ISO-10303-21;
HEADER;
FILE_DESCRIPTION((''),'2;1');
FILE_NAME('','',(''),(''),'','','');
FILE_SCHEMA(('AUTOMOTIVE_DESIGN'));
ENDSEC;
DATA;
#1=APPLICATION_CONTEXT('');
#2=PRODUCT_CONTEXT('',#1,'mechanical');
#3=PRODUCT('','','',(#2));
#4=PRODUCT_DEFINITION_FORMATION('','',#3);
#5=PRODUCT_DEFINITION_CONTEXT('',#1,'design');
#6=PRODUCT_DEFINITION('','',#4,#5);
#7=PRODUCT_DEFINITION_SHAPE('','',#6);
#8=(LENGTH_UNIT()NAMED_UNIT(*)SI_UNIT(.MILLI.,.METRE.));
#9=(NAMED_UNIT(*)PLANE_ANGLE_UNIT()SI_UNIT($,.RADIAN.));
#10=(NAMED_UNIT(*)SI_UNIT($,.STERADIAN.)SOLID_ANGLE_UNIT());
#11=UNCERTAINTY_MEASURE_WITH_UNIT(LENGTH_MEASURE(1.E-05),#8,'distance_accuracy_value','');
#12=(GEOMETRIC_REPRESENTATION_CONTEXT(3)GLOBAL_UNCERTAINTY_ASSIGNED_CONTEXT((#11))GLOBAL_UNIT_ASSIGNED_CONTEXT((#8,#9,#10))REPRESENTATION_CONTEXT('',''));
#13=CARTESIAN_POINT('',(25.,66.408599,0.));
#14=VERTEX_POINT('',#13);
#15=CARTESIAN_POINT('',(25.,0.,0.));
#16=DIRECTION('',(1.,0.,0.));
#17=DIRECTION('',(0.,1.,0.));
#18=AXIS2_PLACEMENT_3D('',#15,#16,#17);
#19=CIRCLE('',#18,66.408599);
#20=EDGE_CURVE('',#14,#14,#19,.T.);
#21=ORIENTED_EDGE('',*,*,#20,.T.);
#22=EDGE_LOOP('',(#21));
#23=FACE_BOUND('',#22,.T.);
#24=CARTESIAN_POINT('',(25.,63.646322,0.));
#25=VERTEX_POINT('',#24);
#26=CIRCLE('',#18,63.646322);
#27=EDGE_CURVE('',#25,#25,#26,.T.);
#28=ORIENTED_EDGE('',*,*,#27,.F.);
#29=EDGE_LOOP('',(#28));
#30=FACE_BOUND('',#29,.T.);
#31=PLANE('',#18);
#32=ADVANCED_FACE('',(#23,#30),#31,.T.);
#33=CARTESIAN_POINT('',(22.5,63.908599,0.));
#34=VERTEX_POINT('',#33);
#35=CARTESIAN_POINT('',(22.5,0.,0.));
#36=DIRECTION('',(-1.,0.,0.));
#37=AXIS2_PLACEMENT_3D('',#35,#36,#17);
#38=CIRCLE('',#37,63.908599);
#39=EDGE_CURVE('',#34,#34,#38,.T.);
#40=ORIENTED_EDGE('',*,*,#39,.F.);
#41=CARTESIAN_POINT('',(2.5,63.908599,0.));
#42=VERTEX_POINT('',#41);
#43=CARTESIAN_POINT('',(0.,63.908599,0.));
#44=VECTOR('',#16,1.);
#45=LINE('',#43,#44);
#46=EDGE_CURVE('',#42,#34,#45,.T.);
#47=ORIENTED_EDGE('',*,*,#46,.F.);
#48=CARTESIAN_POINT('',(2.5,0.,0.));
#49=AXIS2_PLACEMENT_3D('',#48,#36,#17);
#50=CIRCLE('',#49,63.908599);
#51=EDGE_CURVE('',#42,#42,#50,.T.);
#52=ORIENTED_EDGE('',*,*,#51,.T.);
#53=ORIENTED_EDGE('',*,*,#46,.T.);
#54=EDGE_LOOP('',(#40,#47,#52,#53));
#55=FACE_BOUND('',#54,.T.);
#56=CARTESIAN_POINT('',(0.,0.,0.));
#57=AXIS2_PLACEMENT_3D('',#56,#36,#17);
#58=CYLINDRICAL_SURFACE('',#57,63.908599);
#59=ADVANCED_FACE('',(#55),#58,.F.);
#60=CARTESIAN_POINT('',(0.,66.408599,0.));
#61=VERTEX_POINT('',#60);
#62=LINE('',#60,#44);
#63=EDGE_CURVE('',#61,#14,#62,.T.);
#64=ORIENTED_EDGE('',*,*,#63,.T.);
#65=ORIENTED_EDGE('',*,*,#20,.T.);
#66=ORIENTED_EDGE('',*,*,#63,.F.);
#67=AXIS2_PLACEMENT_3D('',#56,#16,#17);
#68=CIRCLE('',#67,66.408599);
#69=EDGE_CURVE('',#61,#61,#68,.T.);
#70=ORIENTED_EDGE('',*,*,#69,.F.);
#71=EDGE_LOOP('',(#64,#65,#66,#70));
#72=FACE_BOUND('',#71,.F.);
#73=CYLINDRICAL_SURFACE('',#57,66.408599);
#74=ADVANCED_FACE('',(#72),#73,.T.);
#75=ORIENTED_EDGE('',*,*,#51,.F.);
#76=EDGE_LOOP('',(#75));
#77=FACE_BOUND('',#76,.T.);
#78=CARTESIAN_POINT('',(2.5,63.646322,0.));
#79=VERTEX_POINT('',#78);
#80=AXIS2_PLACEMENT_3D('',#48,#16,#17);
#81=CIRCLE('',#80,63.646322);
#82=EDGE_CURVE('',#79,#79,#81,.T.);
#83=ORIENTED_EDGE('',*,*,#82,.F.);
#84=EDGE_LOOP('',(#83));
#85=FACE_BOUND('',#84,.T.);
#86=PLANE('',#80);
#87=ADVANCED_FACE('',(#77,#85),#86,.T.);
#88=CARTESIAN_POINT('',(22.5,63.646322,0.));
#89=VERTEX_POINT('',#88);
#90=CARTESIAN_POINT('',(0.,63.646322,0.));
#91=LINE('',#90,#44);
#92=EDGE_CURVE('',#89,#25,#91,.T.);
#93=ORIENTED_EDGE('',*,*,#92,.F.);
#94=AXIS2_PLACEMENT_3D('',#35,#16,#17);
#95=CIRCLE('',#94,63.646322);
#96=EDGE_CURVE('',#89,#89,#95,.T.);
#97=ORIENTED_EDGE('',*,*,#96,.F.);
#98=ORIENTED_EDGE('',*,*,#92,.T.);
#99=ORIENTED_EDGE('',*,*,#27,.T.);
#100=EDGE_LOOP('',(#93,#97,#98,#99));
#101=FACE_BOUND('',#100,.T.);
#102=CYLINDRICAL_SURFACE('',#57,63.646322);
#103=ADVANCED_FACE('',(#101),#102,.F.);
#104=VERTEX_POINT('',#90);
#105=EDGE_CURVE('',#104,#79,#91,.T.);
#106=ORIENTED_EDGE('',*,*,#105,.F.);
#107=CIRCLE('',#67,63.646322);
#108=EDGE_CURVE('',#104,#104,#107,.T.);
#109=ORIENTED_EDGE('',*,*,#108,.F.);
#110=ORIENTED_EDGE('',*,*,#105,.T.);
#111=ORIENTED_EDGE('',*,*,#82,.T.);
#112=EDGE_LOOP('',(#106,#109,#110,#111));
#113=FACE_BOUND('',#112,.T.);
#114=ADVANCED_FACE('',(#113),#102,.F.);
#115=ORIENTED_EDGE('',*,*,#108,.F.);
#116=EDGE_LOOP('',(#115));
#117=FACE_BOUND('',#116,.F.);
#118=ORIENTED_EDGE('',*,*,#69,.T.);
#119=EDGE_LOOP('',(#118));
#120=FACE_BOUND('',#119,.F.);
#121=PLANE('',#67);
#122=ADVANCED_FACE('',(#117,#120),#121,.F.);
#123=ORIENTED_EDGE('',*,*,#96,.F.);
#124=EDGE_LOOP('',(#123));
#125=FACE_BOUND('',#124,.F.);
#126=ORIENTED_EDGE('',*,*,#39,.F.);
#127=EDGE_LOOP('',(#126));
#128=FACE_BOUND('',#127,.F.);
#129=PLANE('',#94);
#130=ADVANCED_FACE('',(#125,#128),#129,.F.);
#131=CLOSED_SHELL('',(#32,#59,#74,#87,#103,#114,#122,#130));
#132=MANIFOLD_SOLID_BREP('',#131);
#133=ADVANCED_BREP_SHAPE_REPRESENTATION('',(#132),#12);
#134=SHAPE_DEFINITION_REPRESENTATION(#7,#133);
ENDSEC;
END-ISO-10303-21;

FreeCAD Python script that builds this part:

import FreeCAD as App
import Part
import Sketcher
from FreeCAD import Vector
Q = App.Units.Quantity


def faces_at(feature, points):
    """Names of the faces that lie closest to the given points."""
    faces = feature.Shape.Faces
    near = lambda p: min(range(len(faces)), key=lambda i: faces[i].distToShape(Part.Vertex(*p))[0])
    return sorted({f"Face{near(p) + 1}" for p in points})

doc = App.newDocument("Part")
body = doc.addObject("PartDesign::Body", "Body")

# Sketch on YZ plane
sketch1 = doc.addObject("Sketcher::SketchObject", "Sketch")
body.addObject(sketch1)
sketch1.AttachmentSupport = (doc.YZ_Plane, [""])
sketch1.MapMode = "FlatFace"
sketch1.addGeometry(Part.Circle(Vector(0, 0, 0), Vector(0, 0, 1), 66), False)
sketch1.addGeometry(Part.Circle(Vector(0, 0, 0), Vector(0, 0, 1), 64), False)
sketch1.addConstraint(Sketcher.Constraint("Coincident", 0, 3, -1, 1))
sketch1.addConstraint(Sketcher.Constraint("Coincident", 1, 3, -1, 1))
sketch1.addConstraint(Sketcher.Constraint("Diameter", 0, Q("132.817198 mm")))
sketch1.addConstraint(Sketcher.Constraint("Diameter", 1, Q("127.292644 mm")))
pad1 = doc.addObject("PartDesign::Pad", "Pad")
body.addObject(pad1)
pad1.Profile = sketch1
pad1.Length = 25
doc.recompute()

thickness = doc.addObject("PartDesign::Thickness", "Thickness")
body.addObject(thickness)
thickness.Base = (pad1, faces_at(pad1, [(12.5, -63.646, 0)]))
thickness.Value = 2.5
thickness.Reversed = True
thickness.Join = "Arc"

doc.recompute()
